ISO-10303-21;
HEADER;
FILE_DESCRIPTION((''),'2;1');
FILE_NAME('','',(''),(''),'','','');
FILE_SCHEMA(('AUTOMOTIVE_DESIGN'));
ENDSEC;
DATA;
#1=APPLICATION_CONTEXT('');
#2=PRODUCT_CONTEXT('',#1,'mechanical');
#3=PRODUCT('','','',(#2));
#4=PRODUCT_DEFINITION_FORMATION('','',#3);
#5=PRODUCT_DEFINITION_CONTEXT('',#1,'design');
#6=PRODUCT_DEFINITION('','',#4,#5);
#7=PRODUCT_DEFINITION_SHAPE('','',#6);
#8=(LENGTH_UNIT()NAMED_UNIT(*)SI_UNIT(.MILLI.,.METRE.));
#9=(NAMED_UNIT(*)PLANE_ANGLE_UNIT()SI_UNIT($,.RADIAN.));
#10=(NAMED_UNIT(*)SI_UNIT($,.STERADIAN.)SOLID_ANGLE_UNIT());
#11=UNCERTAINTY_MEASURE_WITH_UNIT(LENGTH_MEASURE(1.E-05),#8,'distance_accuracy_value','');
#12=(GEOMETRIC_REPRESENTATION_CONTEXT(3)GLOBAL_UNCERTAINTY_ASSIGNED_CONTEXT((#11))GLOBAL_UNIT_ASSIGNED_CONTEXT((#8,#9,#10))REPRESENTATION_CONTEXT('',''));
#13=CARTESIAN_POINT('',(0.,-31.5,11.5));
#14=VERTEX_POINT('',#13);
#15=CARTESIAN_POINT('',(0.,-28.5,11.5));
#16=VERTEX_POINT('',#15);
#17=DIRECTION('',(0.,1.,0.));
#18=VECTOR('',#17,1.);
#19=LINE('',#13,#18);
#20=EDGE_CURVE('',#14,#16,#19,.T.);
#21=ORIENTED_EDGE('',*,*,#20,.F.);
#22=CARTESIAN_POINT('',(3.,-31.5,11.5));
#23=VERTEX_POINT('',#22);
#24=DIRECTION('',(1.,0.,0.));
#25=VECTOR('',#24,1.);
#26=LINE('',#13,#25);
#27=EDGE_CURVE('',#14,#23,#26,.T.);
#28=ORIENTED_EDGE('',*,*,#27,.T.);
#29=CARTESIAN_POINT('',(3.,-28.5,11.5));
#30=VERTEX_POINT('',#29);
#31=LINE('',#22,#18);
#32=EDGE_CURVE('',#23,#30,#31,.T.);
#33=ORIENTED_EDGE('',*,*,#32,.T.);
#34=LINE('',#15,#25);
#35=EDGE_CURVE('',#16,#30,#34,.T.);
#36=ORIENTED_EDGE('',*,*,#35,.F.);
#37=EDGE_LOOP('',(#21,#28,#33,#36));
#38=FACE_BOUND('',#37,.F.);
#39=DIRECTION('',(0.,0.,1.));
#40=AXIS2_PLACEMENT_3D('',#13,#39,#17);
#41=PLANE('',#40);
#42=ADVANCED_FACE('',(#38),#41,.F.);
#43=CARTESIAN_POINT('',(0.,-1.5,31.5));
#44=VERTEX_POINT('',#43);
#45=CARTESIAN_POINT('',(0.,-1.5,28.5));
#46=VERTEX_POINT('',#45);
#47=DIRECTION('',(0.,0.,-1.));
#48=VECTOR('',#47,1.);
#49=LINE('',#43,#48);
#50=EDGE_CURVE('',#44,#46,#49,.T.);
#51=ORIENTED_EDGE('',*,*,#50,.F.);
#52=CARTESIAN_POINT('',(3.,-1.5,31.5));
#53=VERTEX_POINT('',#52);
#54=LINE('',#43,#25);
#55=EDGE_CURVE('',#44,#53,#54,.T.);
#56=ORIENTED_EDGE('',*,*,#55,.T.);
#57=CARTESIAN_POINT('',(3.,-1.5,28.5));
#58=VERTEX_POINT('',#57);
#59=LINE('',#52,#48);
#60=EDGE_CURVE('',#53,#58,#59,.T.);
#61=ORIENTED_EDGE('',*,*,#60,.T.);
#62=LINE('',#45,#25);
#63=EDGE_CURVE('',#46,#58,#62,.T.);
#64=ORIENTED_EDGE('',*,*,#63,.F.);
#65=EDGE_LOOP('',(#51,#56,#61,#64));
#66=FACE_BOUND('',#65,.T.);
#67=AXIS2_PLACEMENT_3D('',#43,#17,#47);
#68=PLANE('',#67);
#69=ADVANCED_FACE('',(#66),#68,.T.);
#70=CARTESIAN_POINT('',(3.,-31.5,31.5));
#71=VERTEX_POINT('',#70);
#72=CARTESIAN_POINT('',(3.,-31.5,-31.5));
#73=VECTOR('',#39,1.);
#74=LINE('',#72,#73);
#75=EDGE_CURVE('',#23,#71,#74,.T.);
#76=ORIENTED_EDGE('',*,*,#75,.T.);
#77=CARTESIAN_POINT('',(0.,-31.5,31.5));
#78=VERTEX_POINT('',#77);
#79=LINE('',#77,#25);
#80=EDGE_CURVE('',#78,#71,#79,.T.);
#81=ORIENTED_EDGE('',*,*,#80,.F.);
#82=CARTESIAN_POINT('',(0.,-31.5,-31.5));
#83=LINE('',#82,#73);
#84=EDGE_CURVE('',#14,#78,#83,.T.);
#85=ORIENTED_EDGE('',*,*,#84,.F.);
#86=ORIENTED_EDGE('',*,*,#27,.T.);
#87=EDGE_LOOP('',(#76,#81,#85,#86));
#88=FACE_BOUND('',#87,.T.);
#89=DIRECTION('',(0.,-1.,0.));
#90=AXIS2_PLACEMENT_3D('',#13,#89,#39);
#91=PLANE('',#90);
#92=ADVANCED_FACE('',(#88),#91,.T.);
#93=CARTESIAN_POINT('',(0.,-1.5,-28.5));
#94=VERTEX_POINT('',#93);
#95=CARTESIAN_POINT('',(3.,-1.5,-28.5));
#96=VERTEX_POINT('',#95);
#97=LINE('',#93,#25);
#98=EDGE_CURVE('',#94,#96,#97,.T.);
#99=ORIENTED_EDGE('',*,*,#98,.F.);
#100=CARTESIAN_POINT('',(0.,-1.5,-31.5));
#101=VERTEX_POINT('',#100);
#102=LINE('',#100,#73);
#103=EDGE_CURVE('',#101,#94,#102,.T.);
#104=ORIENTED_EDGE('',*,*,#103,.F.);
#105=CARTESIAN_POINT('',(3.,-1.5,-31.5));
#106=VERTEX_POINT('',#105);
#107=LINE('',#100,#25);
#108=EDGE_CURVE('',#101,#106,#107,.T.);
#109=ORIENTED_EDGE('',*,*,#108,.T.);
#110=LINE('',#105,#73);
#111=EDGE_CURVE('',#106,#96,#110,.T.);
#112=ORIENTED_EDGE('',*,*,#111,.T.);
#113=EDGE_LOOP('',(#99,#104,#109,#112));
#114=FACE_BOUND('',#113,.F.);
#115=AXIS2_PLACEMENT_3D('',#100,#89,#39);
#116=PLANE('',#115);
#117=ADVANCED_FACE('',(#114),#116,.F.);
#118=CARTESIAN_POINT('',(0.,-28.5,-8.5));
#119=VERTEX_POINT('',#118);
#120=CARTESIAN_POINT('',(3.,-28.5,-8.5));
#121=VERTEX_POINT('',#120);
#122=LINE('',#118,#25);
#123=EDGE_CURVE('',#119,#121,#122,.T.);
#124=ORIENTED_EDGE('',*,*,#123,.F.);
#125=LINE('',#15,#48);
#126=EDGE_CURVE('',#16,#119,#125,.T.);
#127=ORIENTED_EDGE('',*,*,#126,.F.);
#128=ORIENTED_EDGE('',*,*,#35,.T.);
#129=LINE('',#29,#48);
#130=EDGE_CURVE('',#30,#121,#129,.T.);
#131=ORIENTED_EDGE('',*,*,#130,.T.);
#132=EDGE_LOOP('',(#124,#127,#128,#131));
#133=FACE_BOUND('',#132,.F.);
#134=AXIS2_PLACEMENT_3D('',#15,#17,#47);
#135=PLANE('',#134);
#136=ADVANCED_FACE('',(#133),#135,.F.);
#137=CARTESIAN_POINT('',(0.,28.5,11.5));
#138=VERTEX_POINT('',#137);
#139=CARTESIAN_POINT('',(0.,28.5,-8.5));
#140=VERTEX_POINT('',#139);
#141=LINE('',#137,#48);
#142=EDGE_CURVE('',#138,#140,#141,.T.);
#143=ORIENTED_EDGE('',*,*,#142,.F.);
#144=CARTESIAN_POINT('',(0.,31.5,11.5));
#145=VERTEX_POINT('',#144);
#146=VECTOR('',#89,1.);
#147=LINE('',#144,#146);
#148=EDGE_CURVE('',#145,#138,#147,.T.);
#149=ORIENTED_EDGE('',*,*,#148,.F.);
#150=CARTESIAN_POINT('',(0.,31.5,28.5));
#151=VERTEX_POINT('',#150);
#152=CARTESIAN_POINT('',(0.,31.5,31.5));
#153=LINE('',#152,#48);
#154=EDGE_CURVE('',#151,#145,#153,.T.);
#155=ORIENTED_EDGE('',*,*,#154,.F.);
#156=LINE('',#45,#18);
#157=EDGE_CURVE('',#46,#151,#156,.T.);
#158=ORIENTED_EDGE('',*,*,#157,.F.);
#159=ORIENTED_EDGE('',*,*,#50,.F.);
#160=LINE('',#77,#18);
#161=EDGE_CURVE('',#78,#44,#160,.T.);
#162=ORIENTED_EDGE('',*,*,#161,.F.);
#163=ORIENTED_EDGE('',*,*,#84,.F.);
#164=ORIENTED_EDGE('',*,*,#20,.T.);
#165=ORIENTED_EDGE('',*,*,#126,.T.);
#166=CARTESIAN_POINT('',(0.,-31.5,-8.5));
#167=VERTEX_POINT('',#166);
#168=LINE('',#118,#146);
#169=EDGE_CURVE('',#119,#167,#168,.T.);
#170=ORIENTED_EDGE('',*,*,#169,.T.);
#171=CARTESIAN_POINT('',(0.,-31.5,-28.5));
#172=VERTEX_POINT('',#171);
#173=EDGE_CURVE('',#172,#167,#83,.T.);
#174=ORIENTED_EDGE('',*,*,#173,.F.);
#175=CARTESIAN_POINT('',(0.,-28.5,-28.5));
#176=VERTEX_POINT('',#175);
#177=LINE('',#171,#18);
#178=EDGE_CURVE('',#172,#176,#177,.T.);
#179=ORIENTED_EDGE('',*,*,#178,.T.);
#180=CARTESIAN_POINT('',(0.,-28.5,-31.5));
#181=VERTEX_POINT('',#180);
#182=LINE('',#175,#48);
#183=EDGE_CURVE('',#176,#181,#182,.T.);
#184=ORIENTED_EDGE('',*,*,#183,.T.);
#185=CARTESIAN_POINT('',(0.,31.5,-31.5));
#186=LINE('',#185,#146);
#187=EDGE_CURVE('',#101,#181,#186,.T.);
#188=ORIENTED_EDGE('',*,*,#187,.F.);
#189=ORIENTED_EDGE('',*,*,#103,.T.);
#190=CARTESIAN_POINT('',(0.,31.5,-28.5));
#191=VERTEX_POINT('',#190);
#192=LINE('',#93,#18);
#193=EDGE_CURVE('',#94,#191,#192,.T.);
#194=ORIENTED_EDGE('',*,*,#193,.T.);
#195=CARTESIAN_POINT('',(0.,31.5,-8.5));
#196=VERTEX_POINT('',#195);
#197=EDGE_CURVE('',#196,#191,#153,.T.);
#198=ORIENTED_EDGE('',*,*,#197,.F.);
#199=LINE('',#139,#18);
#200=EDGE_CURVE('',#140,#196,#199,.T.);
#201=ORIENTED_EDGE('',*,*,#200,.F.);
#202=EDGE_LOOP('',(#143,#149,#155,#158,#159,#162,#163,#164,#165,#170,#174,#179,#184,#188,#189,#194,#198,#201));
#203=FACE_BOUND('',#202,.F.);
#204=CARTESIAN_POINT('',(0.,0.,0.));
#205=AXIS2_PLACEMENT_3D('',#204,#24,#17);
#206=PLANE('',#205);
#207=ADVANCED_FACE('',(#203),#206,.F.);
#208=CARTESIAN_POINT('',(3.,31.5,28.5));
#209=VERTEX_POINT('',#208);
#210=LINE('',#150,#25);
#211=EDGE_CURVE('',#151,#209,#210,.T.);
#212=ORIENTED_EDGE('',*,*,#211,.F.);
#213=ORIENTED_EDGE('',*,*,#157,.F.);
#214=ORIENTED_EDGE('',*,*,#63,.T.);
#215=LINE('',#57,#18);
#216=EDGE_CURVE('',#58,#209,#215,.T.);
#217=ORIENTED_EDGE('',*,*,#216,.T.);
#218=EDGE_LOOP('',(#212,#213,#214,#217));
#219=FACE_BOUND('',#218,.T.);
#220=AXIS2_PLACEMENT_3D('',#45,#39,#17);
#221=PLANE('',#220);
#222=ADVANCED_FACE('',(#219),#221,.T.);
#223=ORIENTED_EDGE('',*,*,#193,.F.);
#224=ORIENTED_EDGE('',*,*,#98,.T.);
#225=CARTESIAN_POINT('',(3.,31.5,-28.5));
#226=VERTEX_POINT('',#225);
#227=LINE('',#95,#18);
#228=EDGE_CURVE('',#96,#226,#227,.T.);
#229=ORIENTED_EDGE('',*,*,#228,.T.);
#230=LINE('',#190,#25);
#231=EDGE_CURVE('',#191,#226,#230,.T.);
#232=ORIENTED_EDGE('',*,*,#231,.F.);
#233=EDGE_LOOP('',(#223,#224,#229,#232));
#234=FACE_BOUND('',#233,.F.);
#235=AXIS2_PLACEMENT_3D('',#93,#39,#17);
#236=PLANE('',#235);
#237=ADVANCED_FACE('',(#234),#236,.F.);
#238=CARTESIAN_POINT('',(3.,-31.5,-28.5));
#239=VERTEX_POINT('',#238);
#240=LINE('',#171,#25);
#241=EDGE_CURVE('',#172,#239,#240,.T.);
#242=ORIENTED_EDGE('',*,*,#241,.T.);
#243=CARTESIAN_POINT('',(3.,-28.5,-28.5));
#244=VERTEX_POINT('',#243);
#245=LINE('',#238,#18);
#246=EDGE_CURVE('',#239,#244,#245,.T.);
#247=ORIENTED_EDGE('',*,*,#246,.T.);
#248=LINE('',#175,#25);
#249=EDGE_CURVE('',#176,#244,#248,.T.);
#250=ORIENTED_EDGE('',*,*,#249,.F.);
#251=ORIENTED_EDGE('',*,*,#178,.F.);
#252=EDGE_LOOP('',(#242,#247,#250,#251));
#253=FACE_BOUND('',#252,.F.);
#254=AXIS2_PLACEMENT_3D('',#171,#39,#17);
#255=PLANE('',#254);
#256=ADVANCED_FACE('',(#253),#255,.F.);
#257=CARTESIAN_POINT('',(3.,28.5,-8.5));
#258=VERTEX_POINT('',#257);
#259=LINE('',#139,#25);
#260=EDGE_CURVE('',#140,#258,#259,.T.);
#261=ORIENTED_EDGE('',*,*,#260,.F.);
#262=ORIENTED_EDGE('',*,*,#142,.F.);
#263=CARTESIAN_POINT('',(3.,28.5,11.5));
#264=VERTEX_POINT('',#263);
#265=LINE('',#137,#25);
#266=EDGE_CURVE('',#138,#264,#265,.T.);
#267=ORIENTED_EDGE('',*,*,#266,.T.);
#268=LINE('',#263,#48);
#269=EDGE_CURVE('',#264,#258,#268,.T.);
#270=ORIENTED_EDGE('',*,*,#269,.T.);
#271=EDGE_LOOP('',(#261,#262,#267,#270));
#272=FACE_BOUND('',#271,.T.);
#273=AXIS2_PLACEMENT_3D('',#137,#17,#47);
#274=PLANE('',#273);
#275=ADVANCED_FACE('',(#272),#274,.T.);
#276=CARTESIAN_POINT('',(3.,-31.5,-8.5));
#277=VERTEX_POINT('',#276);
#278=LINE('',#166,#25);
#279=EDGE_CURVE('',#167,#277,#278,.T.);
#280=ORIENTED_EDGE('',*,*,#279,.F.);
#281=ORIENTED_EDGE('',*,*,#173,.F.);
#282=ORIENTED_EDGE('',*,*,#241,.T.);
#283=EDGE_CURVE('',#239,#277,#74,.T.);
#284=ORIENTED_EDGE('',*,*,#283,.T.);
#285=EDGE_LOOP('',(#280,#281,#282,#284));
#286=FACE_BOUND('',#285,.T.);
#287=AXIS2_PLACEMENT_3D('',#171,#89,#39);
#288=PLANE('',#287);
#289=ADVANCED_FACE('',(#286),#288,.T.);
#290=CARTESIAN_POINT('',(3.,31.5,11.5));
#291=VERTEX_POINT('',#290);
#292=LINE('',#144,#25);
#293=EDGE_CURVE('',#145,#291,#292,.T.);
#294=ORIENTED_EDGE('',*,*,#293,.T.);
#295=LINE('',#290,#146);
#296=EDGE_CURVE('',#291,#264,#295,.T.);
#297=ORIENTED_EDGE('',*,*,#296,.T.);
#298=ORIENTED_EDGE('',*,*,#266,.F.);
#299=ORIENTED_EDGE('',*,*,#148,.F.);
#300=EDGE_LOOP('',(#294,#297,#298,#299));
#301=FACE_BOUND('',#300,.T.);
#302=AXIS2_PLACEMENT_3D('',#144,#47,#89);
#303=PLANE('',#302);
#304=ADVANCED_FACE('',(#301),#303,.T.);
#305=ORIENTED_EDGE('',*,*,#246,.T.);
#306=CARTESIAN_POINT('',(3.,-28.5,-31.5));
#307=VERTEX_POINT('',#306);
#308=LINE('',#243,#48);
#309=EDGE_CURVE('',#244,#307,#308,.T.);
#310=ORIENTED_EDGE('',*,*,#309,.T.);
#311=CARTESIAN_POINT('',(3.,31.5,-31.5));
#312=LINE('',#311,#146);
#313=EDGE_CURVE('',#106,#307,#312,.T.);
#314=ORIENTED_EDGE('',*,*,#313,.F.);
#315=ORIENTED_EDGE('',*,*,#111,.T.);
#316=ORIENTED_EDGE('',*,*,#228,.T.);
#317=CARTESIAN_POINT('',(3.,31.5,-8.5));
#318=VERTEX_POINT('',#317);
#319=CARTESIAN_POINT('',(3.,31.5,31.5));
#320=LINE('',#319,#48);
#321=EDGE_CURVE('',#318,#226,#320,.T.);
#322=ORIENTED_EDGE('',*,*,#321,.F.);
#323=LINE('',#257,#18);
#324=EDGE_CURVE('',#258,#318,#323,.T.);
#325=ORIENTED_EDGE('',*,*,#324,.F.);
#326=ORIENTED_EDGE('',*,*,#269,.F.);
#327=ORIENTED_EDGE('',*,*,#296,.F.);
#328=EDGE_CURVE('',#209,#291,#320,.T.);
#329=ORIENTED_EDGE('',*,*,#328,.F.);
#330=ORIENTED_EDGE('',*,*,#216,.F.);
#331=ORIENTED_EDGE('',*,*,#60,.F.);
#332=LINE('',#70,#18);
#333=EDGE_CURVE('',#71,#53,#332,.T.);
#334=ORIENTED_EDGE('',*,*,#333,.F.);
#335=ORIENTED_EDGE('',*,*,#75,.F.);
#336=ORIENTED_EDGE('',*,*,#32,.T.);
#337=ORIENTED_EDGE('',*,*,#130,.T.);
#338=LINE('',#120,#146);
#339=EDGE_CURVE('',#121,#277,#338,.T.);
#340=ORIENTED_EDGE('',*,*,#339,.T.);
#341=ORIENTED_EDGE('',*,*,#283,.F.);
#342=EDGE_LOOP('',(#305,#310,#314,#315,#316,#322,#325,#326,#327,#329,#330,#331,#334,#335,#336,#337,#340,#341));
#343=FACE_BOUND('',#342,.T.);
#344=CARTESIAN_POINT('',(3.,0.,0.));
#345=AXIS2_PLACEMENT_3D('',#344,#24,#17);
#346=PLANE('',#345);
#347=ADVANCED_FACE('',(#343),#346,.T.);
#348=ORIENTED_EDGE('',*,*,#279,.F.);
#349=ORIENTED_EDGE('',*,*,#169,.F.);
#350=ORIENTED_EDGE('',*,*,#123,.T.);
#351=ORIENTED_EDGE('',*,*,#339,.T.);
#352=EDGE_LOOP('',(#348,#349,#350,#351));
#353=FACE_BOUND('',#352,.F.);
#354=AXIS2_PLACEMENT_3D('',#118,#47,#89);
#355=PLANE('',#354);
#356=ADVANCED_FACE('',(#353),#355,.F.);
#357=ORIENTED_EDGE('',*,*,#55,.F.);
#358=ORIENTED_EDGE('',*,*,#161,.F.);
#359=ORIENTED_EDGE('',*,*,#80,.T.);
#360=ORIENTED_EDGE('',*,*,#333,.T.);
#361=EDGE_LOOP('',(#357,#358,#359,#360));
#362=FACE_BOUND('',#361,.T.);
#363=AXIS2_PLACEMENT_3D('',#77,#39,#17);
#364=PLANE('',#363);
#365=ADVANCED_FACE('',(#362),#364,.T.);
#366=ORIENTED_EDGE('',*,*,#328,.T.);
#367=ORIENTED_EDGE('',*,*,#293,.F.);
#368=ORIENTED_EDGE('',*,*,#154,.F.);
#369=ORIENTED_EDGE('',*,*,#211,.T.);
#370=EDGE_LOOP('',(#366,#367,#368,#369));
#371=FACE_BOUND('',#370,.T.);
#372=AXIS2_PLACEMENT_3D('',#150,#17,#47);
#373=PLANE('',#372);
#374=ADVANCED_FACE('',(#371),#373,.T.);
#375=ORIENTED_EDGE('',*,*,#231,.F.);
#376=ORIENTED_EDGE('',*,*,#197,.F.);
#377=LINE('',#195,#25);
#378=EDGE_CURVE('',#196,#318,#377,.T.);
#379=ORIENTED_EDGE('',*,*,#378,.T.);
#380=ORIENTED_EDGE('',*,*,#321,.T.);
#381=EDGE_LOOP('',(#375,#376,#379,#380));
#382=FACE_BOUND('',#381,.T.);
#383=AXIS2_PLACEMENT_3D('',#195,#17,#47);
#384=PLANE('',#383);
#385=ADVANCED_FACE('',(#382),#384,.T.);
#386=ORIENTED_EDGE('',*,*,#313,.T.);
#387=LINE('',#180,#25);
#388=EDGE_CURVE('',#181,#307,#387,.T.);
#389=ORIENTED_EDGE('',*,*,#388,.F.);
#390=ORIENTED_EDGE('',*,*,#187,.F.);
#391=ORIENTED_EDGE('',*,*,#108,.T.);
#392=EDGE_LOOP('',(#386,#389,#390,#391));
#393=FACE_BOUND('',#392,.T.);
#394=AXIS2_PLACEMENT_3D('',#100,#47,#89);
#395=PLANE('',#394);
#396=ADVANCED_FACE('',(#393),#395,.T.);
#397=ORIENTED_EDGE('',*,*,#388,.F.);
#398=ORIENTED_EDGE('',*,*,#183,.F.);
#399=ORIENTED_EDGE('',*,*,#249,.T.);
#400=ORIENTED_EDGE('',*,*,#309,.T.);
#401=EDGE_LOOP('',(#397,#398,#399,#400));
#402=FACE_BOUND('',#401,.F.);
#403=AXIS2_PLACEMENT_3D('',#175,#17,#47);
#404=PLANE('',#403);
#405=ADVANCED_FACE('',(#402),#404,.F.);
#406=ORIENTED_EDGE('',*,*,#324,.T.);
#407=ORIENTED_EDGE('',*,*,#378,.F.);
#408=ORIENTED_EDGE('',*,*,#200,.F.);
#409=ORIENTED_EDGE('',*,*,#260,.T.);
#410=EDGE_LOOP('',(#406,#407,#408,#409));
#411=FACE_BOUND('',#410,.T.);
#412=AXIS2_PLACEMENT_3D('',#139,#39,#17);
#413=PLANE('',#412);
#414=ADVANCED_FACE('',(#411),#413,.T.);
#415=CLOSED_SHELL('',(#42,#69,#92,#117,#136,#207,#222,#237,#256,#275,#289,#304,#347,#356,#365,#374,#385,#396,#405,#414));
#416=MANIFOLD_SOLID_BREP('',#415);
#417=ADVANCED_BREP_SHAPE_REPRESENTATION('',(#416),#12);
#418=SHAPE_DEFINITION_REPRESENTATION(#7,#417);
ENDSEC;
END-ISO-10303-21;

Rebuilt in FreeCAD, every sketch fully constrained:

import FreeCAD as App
import Part
import Sketcher

V = App.Vector


def add_polygon(sketch, points):
    """Adds a closed chain of lines whose ends are joined by coincident constraints."""
    first, n = sketch.GeometryCount, len(points)
    for a, b in zip(points, points[1:] + points[:1]):
        sketch.addGeometry(Part.LineSegment(App.Vector(*a, 0), App.Vector(*b, 0)), False)
    for i in range(n):
        sketch.addConstraint(Sketcher.Constraint("Coincident", first + i, 2, first + (i + 1) % n, 1))

doc = App.newDocument("Part")
params = doc.addObject("Spreadsheet::Sheet", "Params")
for row, (alias, value) in enumerate([
    ("sketch1_width", "3 mm"),
    ("sketch1_width2", "33 mm"),
    ("sketch1_height", "20 mm"),
    ("pad1_length", "3 mm"),
], start=1):
    params.set(f"A{row}", alias)
    params.set(f"B{row}", "=" + value)
    params.setAlias(f"B{row}", alias)

body = doc.addObject("PartDesign::Body", "Body")

# Sketch on YZ plane
sketch1 = body.newObject("Sketcher::SketchObject", "Sketch")
sketch1.AttachmentSupport = (doc.getObject("YZ_Plane"), [""])
sketch1.MapMode = "FlatFace"
add_polygon(sketch1, [(-1.5, 31.5), (-31.5, 31.5), (-31.5, 11.5), (-28.5, 11.5), (-28.5, -8.5), (-31.5, -8.5), (-31.5, -28.5), (-28.5, -28.5), (-28.5, -31.5), (-1.5, -31.5), (-1.5, -28.5), (31.5, -28.5), (31.5, -8.5), (28.5, -8.5), (28.5, 11.5), (31.5, 11.5), (31.5, 28.5), (-1.5, 28.5)])  # lines 0-17
sketch1.addConstraint([
    Sketcher.Constraint("Horizontal", 0),
    Sketcher.Constraint("Vertical", 1),
    Sketcher.Constraint("Horizontal", 2),
    Sketcher.Constraint("Vertical", 3),
    Sketcher.Constraint("Horizontal", 4),
    Sketcher.Constraint("Vertical", 5),
    Sketcher.Constraint("Horizontal", 6),
    Sketcher.Constraint("Vertical", 7),
    Sketcher.Constraint("Horizontal", 8),
    Sketcher.Constraint("Vertical", 9),
    Sketcher.Constraint("Horizontal", 10),
    Sketcher.Constraint("Vertical", 11),
    Sketcher.Constraint("Horizontal", 12),
    Sketcher.Constraint("Vertical", 13),
    Sketcher.Constraint("Horizontal", 14),
    Sketcher.Constraint("Vertical", 15),
    Sketcher.Constraint("Horizontal", 16),
    Sketcher.Constraint("Vertical", 17),
    Sketcher.Constraint("Symmetric", 5, 2, 15, 2, -1, 1),
    Sketcher.Constraint("Symmetric", 5, 2, 10, 2, -2),
    Sketcher.Constraint("Symmetric", 3, 2, 12, 2, -2),
    Sketcher.Constraint("Symmetric", 1, 2, 14, 2, -2),
    Sketcher.Constraint("Symmetric", 8, 2, 17, 2, -1),
    Sketcher.Constraint("Vertical", 3, 2, 6, 2),
    Sketcher.Constraint("Equal", 1, 3),
    Sketcher.Constraint("Equal", 3, 5),
    Sketcher.Constraint("Equal", 14, 7),
    Sketcher.Constraint("DistanceX", 2, 1, 2, 2, 3.0),
    Sketcher.Constraint("DistanceX", 10, 1, 10, 2, 33.0),
    Sketcher.Constraint("DistanceY", 1, 2, 1, 1, 20.0),
    Sketcher.Constraint("DistanceX", 5, 2, 10, 2, 63.0),
])
sketch1.setExpression("Constraints[45]", "Params.sketch1_width")
sketch1.setExpression("Constraints[46]", "Params.sketch1_width2")
sketch1.setExpression("Constraints[47]", "Params.sketch1_height")
pad1 = body.newObject("PartDesign::Pad", "Pad")
pad1.Profile = sketch1
pad1.setExpression("Length", "Params.pad1_length")

doc.recompute()
